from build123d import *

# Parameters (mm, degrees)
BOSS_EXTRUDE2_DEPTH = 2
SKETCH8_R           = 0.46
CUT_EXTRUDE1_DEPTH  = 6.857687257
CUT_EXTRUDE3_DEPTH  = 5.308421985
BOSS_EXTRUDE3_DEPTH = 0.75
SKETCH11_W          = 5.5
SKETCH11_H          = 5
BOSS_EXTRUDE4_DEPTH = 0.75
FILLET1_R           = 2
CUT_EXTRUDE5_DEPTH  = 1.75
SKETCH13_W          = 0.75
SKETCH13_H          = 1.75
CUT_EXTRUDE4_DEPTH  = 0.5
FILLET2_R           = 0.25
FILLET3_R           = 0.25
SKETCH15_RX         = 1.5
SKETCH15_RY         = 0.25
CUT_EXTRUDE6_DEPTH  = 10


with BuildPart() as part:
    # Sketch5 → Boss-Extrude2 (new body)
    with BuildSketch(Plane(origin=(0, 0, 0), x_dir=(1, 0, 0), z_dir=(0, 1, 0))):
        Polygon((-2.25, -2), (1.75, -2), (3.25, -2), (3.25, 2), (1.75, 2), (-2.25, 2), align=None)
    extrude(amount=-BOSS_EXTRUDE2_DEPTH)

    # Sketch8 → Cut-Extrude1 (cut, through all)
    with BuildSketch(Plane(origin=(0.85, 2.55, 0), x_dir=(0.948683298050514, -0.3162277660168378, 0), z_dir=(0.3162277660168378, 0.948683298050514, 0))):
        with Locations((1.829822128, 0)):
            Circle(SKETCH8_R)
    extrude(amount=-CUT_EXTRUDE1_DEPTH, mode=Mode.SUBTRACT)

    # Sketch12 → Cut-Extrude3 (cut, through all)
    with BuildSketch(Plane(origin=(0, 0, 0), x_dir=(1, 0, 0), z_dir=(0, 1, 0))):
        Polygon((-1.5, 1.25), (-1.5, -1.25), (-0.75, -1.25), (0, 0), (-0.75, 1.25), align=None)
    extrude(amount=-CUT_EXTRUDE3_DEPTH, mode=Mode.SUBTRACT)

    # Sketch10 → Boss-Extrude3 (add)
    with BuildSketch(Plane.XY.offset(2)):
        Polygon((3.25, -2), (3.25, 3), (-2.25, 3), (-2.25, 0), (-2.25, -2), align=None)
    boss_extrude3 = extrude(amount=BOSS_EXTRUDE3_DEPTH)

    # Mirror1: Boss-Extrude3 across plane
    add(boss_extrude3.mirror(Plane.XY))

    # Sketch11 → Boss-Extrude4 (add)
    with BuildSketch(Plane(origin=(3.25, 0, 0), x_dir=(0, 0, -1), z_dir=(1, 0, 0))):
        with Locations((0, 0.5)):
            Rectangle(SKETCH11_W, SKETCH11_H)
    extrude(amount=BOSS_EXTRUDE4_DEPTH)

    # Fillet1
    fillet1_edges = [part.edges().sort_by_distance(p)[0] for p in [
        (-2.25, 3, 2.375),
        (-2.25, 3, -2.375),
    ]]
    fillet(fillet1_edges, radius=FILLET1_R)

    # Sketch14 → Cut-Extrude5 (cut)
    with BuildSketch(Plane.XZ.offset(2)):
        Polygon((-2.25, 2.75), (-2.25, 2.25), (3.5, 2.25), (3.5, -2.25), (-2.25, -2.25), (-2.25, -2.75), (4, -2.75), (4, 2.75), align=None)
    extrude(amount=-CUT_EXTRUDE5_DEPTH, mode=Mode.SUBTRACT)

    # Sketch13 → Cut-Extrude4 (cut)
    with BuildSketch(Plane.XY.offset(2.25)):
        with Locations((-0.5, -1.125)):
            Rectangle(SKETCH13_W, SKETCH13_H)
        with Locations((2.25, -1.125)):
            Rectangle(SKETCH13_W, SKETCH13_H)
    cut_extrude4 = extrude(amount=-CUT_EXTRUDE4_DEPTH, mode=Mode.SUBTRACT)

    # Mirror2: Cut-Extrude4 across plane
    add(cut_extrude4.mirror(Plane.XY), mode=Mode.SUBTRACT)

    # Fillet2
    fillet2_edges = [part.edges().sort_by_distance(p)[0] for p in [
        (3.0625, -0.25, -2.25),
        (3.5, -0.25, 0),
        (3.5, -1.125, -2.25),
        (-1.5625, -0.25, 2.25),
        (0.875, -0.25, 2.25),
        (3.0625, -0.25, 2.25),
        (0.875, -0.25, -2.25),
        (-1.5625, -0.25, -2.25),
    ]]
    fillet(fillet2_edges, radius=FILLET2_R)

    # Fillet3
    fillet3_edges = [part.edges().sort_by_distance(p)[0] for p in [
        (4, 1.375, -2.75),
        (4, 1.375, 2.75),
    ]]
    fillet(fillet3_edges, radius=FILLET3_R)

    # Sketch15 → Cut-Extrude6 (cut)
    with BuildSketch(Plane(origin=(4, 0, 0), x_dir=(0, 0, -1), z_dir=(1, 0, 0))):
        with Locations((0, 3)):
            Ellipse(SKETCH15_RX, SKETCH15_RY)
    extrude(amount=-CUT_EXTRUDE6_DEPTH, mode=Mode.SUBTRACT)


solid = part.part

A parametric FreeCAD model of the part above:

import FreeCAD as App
import Part
import Sketcher
from FreeCAD import Vector


def edges_at(feature, points):
    """Names of the edges that pass closest to the given points."""
    edges = feature.Shape.Edges
    near = lambda p: min(range(len(edges)), key=lambda i: edges[i].distToShape(Part.Vertex(*p))[0])
    return sorted({f"Edge{near(p) + 1}" for p in points})


def add_polygon(sketch, points):
    """Adds a closed chain of lines whose ends are joined by coincident constraints."""
    first, n = sketch.GeometryCount, len(points)
    for a, b in zip(points, points[1:] + points[:1]):
        sketch.addGeometry(Part.LineSegment(App.Vector(*a, 0), App.Vector(*b, 0)), False)
    for i in range(n):
        sketch.addConstraint(Sketcher.Constraint("Coincident", first + i, 2, first + (i + 1) % n, 1))

doc = App.newDocument("Part")
body = doc.addObject("PartDesign::Body", "Body")

# Sketch on XZ plane
sketch1 = body.newObject("Sketcher::SketchObject", "Sketch")
sketch1.AttachmentSupport = (doc.getObject("XZ_Plane"), [""])
sketch1.MapMode = "FlatFace"
add_polygon(sketch1, [(-2.2, 2), (3.2, 2), (3.2, -2), (-2.2, -2)])  # lines 0-3
sketch1.addConstraint([
    Sketcher.Constraint("Horizontal", 0),
    Sketcher.Constraint("Vertical", 1),
    Sketcher.Constraint("Horizontal", 2),
    Sketcher.Constraint("Vertical", 3),
    Sketcher.Constraint("DistanceY", 1, 2, 1, 1, 4.0),
    Sketcher.Constraint("DistanceX", 0, 1, 0, 2, 5.5),
    Sketcher.Constraint("DistanceY", -1, 1, 0, 2, 2.0),
    Sketcher.Constraint("DistanceX", -1, 1, 0, 2, 3.25),
])
pad1 = body.newObject("PartDesign::Pad", "Pad")
pad1.Profile = sketch1
pad1.Length = 2

# Sketch on an angled plane
sketch2 = body.newObject("Sketcher::SketchObject", "Sketch001")
sketch2.Placement = App.Placement(Vector(0.85, 2.55, 0), App.Rotation(Vector(0.948683298, -0.316227766, 0), Vector(0, 0, -1), Vector(0.316227766, 0.948683298, 0), "ZXY"))
sketch2.addGeometry(Part.Circle(Vector(1.83, 0, 0), Vector(0, 0, 1), 0.46), False)
sketch2.addConstraint([
    Sketcher.Constraint("PointOnObject", 0, 3, -1),
    Sketcher.Constraint("Diameter", 0, 0.92),
    Sketcher.Constraint("DistanceX", -1, 1, 0, 3, 1.829822),
])
pocket1 = body.newObject("PartDesign::Pocket", "Pocket")
pocket1.Profile = sketch2
pocket1.Type = "ThroughAll"

# Sketch on XZ plane
sketch3 = body.newObject("Sketcher::SketchObject", "Sketch002")
sketch3.AttachmentSupport = (doc.getObject("XZ_Plane"), [""])
sketch3.MapMode = "FlatFace"
add_polygon(sketch3, [(-1.5, -1.2), (-1.5, 1.2), (-0.8, 1.2), (0, 0), (-0.8, -1.2)])  # lines 0-4
sketch3.addConstraint([
    Sketcher.Constraint("Vertical", 0),
    Sketcher.Constraint("Horizontal", 1),
    Sketcher.Constraint("Horizontal", 4),
    Sketcher.Constraint("Coincident", 2, 2, -1, 1),
    Sketcher.Constraint("Symmetric", 1, 2, 3, 2, -1),
    Sketcher.Constraint("DistanceY", 0, 1, 0, 2, 2.5),
    Sketcher.Constraint("DistanceX", 1, 1, 1, 2, 0.75),
    Sketcher.Constraint("DistanceX", 0, 2, -1, 1, 1.5),
])
pocket2 = body.newObject("PartDesign::Pocket", "Pocket001")
pocket2.Profile = sketch3
pocket2.Type = "ThroughAll"
pocket2.Reversed = True

# Sketch on XY plane
sketch4 = body.newObject("Sketcher::SketchObject", "Sketch003")
sketch4.AttachmentSupport = (doc.getObject("XY_Plane"), [""])
sketch4.MapMode = "FlatFace"
sketch4.AttachmentOffset = App.Placement(Vector(0, 0, 2), App.Rotation())
add_polygon(sketch4, [(3, -2), (3, 3), (-2, 3), (-2, -2)])  # lines 0-3
sketch4.addConstraint([
    Sketcher.Constraint("Vertical", 0),
    Sketcher.Constraint("Horizontal", 1),
    Sketcher.Constraint("Vertical", 2),
    Sketcher.Constraint("Horizontal", 3),
    Sketcher.Constraint("DistanceY", 0, 1, 0, 2, 5.0),
    Sketcher.Constraint("DistanceX", 1, 2, 1, 1, 5.5),
    Sketcher.Constraint("DistanceY", -1, 1, 0, 2, 3.0),
    Sketcher.Constraint("DistanceX", -1, 1, 0, 2, 3.25),
])
pad2 = body.newObject("PartDesign::Pad", "Pad001")
pad2.Profile = sketch4
pad2.Length = 0.75
doc.recompute()

mirrored = body.newObject("PartDesign::Mirrored", "Mirrored")
mirrored.Originals = [pad2]
mirrored.MirrorPlane = (doc.getObject("XY_Plane"), [""])
body.Tip = mirrored

# Sketch on YZ plane
sketch5 = body.newObject("Sketcher::SketchObject", "Sketch004")
sketch5.AttachmentSupport = (doc.getObject("YZ_Plane"), [""])
sketch5.MapMode = "FlatFace"
sketch5.AttachmentOffset = App.Placement(Vector(0, 0, 3.25), App.Rotation())
add_polygon(sketch5, [(3, 3), (-2, 3), (-2, -3), (3, -3)])  # lines 0-3
sketch5.addConstraint([
    Sketcher.Constraint("Horizontal", 0),
    Sketcher.Constraint("Vertical", 1),
    Sketcher.Constraint("Horizontal", 2),
    Sketcher.Constraint("Vertical", 3),
    Sketcher.Constraint("DistanceX", 0, 2, 0, 1, 5.0),
    Sketcher.Constraint("DistanceY", 1, 2, 1, 1, 5.5),
    Sketcher.Constraint("DistanceX", 0, 2, -1, 1, 2.0),
    Sketcher.Constraint("DistanceY", -1, 1, 0, 2, 2.75),
])
pad3 = body.newObject("PartDesign::Pad", "Pad002")
pad3.Profile = sketch5
pad3.Length = 0.75
doc.recompute()

fillet = body.newObject("PartDesign::Fillet", "Fillet")
fillet.Base = (pad3, edges_at(pad3, [(-2.25, 3, 2.375), (-2.25, 3, -2.375)]))
fillet.Radius = 2

# Sketch on XZ plane
sketch6 = body.newObject("Sketcher::SketchObject", "Sketch005")
sketch6.AttachmentSupport = (doc.getObject("XZ_Plane"), [""])
sketch6.MapMode = "FlatFace"
sketch6.AttachmentOffset = App.Placement(Vector(0, 0, 2), App.Rotation())
add_polygon(sketch6, [(-2.2, 2.8), (-2.2, 2.2), (3.5, 2.2), (3.5, -2.2), (-2.2, -2.2), (-2.2, -2.8), (4, -2.8), (4, 2.8)])  # lines 0-7
sketch6.addConstraint([
    Sketcher.Constraint("Vertical", 0),
    Sketcher.Constraint("Horizontal", 1),
    Sketcher.Constraint("Vertical", 2),
    Sketcher.Constraint("Horizontal", 3),
    Sketcher.Constraint("Vertical", 4),
    Sketcher.Constraint("Horizontal", 5),
    Sketcher.Constraint("Vertical", 6),
    Sketcher.Constraint("Horizontal", 7),
    Sketcher.Constraint("Symmetric", 0, 2, 3, 2, -1),
    Sketcher.Constraint("Equal", 0, 4),
    Sketcher.Constraint("DistanceY", 0, 2, 0, 1, 0.5),
    Sketcher.Constraint("DistanceY", 2, 2, 2, 1, 4.5),
    Sketcher.Constraint("DistanceX", -1, 1, 5, 2, 4.0),
    Sketcher.Constraint("DistanceX", 1, 1, 1, 2, 5.75),
    Sketcher.Constraint("DistanceX", 5, 1, 5, 2, 6.25),
])
pocket3 = body.newObject("PartDesign::Pocket", "Pocket002")
pocket3.Profile = sketch6
pocket3.Length = 1.75

# Sketch on XY plane
sketch7 = body.newObject("Sketcher::SketchObject", "Sketch006")
sketch7.AttachmentSupport = (doc.getObject("XY_Plane"), [""])
sketch7.MapMode = "FlatFace"
sketch7.AttachmentOffset = App.Placement(Vector(0, 0, 2.25), App.Rotation())
add_polygon(sketch7, [(-0.9, -0.2), (-0.9, -2), (-0.1, -2), (-0.1, -0.2)])  # lines 0-3
add_polygon(sketch7, [(1.9, -0.2), (1.9, -2), (2.6, -2), (2.6, -0.2)])  # lines 4-7
sketch7.addConstraint([
    Sketcher.Constraint("Vertical", 0),
    Sketcher.Constraint("Horizontal", 1),
    Sketcher.Constraint("Vertical", 2),
    Sketcher.Constraint("Horizontal", 3),
    Sketcher.Constraint("Vertical", 4),
    Sketcher.Constraint("Horizontal", 5),
    Sketcher.Constraint("Vertical", 6),
    Sketcher.Constraint("Horizontal", 7),
    Sketcher.Constraint("Horizontal", 1, 2, 4, 2),
    Sketcher.Constraint("Horizontal", 3, 2, 6, 2),
    Sketcher.Constraint("Equal", 3, 5),
    Sketcher.Constraint("DistanceY", 0, 2, -1, 1, 2.0),
    Sketcher.Constraint("DistanceX", 1, 2, 4, 2, 2.0),
    Sketcher.Constraint("DistanceX", 1, 1, 1, 2, 0.75),
    Sketcher.Constraint("DistanceY", 0, 2, 0, 1, 1.75),
    Sketcher.Constraint("DistanceX", 0, 2, -1, 1, 0.875),
])
pocket4 = body.newObject("PartDesign::Pocket", "Pocket003")
pocket4.Profile = sketch7
pocket4.Length = 0.5
doc.recompute()

mirrored2 = body.newObject("PartDesign::Mirrored", "Mirrored001")
mirrored2.Originals = [pocket4]
mirrored2.MirrorPlane = (doc.getObject("XY_Plane"), [""])
body.Tip = mirrored2
doc.recompute()

fillet2 = body.newObject("PartDesign::Fillet", "Fillet001")
fillet2.Base = (mirrored2, edges_at(mirrored2, [
    (3.062, -0.25, -2.25),
    (3.5, -0.25, 0),
    (3.5, -1.125, -2.25),
    (-1.562, -0.25, 2.25),
    (0.875, -0.25, 2.25),
    (3.062, -0.25, 2.25),
    (0.875, -0.25, -2.25),
    (-1.562, -0.25, -2.25),
]))
fillet2.Radius = 0.25
doc.recompute()

fillet3 = body.newObject("PartDesign::Fillet", "Fillet002")
fillet3.Base = (fillet2, edges_at(fillet2, [(4, 1.375, -2.75), (4, 1.375, 2.75)]))
fillet3.Radius = 0.25

# Sketch on YZ plane
sketch8 = body.newObject("Sketcher::SketchObject", "Sketch007")
sketch8.AttachmentSupport = (doc.getObject("YZ_Plane"), [""])
sketch8.MapMode = "FlatFace"
sketch8.AttachmentOffset = App.Placement(Vector(0, 0, 4), App.Rotation())
sketch8.addGeometry(Part.Ellipse(Vector(3, -1.5, 0), Vector(3.25, 0, 0), Vector(3, 0, 0)), False)
sketch8.addConstraint(Sketcher.Constraint("Block", 0))
pocket5 = body.newObject("PartDesign::Pocket", "Pocket004")
pocket5.Profile = sketch8
pocket5.Length = 10

doc.recompute()
